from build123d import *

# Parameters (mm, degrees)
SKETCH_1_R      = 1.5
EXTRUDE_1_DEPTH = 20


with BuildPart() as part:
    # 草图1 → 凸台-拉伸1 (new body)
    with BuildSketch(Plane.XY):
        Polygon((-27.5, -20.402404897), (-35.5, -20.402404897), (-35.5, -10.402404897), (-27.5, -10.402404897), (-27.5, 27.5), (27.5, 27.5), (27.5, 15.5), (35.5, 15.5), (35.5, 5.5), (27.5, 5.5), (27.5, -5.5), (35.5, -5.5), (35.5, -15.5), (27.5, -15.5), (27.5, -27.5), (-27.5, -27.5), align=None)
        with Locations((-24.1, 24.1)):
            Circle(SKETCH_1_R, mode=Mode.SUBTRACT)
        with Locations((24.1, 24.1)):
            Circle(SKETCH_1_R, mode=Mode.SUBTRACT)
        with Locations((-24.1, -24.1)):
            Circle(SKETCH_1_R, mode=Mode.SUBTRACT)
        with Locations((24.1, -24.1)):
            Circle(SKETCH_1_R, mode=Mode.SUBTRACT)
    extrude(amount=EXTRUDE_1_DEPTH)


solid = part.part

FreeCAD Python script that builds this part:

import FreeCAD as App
import Part
import Sketcher

doc = App.newDocument("Part")
body = doc.addObject("PartDesign::Body", "Body")

# Sketch on XY plane
sketch1 = body.newObject("Sketcher::SketchObject", "Sketch")
sketch1.AttachmentSupport = (doc.getObject("XY_Plane"), [""])
sketch1.MapMode = "FlatFace"
sketch1.addGeometry([
    Part.LineSegment(App.Vector(-35.5, -20.4, 0), App.Vector(-27.5, -20.4, 0)),  # 0
    Part.LineSegment(App.Vector(-27.5, -20.4, 0), App.Vector(-27.5, -27.5, 0)),  # 1
    Part.LineSegment(App.Vector(-27.5, -27.5, 0), App.Vector(27.5, -27.5, 0)),  # 2
    Part.LineSegment(App.Vector(27.5, -27.5, 0), App.Vector(27.5, -15.5, 0)),  # 3
    Part.LineSegment(App.Vector(27.5, -15.5, 0), App.Vector(35.5, -15.5, 0)),  # 4
    Part.LineSegment(App.Vector(35.5, -15.5, 0), App.Vector(35.5, -5.5, 0)),  # 5
    Part.LineSegment(App.Vector(35.5, -5.5, 0), App.Vector(27.5, -5.5, 0)),  # 6
    Part.LineSegment(App.Vector(27.5, -5.5, 0), App.Vector(27.5, 5.5, 0)),  # 7
    Part.LineSegment(App.Vector(27.5, 5.5, 0), App.Vector(35.5, 5.5, 0)),  # 8
    Part.LineSegment(App.Vector(35.5, 5.5, 0), App.Vector(35.5, 15.5, 0)),  # 9
    Part.LineSegment(App.Vector(35.5, 15.5, 0), App.Vector(27.5, 15.5, 0)),  # 10
    Part.LineSegment(App.Vector(27.5, 15.5, 0), App.Vector(27.5, 27.5, 0)),  # 11
    Part.LineSegment(App.Vector(27.5, 27.5, 0), App.Vector(-27.5, 27.5, 0)),  # 12
    Part.LineSegment(App.Vector(-27.5, 27.5, 0), App.Vector(-27.5, -10.4, 0)),  # 13
    Part.LineSegment(App.Vector(-27.5, -10.4, 0), App.Vector(-35.5, -10.4, 0)),  # 14
    Part.LineSegment(App.Vector(-35.5, -10.4, 0), App.Vector(-35.5, -20.4, 0)),  # 15
    Part.Circle(App.Vector(24.1, -24.1, 0), App.Vector(0, 0, 1), 1.5),  # 16
    Part.Circle(App.Vector(-24.1, -24.1, 0), App.Vector(0, 0, 1), 1.5),  # 17
    Part.Circle(App.Vector(24.1, 24.1, 0), App.Vector(0, 0, 1), 1.5),  # 18
    Part.Circle(App.Vector(-24.1, 24.1, 0), App.Vector(0, 0, 1), 1.5),  # 19
], False)
sketch1.addConstraint([
    Sketcher.Constraint("Coincident", 0, 2, 1, 1),
    Sketcher.Constraint("Coincident", 1, 2, 2, 1),
    Sketcher.Constraint("Coincident", 2, 2, 3, 1),
    Sketcher.Constraint("Coincident", 3, 2, 4, 1),
    Sketcher.Constraint("Coincident", 4, 2, 5, 1),
    Sketcher.Constraint("Coincident", 5, 2, 6, 1),
    Sketcher.Constraint("Coincident", 6, 2, 7, 1),
    Sketcher.Constraint("Coincident", 7, 2, 8, 1),
    Sketcher.Constraint("Coincident", 8, 2, 9, 1),
    Sketcher.Constraint("Coincident", 9, 2, 10, 1),
    Sketcher.Constraint("Coincident", 10, 2, 11, 1),
    Sketcher.Constraint("Coincident", 11, 2, 12, 1),
    Sketcher.Constraint("Coincident", 12, 2, 13, 1),
    Sketcher.Constraint("Coincident", 13, 2, 14, 1),
    Sketcher.Constraint("Coincident", 14, 2, 15, 1),
    Sketcher.Constraint("Coincident", 15, 2, 0, 1),
    Sketcher.Constraint("Horizontal", 0),
    Sketcher.Constraint("Vertical", 1),
    Sketcher.Constraint("Horizontal", 2),
    Sketcher.Constraint("Vertical", 3),
    Sketcher.Constraint("Horizontal", 4),
    Sketcher.Constraint("Vertical", 5),
    Sketcher.Constraint("Horizontal", 6),
    Sketcher.Constraint("Vertical", 7),
    Sketcher.Constraint("Horizontal", 8),
    Sketcher.Constraint("Vertical", 9),
    Sketcher.Constraint("Horizontal", 10),
    Sketcher.Constraint("Vertical", 11),
    Sketcher.Constraint("Horizontal", 12),
    Sketcher.Constraint("Vertical", 13),
    Sketcher.Constraint("Horizontal", 14),
    Sketcher.Constraint("Vertical", 15),
    Sketcher.Constraint("Equal", 16, 17),
    Sketcher.Constraint("Equal", 17, 18),
    Sketcher.Constraint("Equal", 18, 19),
    Sketcher.Constraint("Symmetric", 17, 3, 18, 3, -1, 1),
    Sketcher.Constraint("Symmetric", 16, 3, 19, 3, -1, 1),
    Sketcher.Constraint("Symmetric", 1, 2, 11, 2, -1, 1),
    Sketcher.Constraint("Symmetric", 16, 3, 17, 3, -2),
    Sketcher.Constraint("Symmetric", 5, 2, 8, 2, -1),
    Sketcher.Constraint("Symmetric", 3, 2, 10, 2, -1),
    Sketcher.Constraint("Vertical", 3, 2, 6, 2),
    Sketcher.Constraint("Vertical", 1, 2, 12, 2),
    Sketcher.Constraint("Equal", 0, 4),
    Sketcher.Constraint("Equal", 9, 15),
    Sketcher.Constraint("Diameter", 16, 3.0),
    Sketcher.Constraint("DistanceX", 0, 1, 0, 2, 8.0),
    Sketcher.Constraint("DistanceX", 2, 1, 2, 2, 55.0),
    Sketcher.Constraint("DistanceY", 3, 1, 3, 2, 12.0),
    Sketcher.Constraint("DistanceY", 5, 1, 5, 2, 10.0),
    Sketcher.Constraint("DistanceY", 7, 1, 7, 2, 11.0),
    Sketcher.Constraint("DistanceX", -1, 1, 16, 3, 24.1),
    Sketcher.Constraint("DistanceY", 16, 3, -1, 1, 24.1),
    Sketcher.Constraint("DistanceY", 1, 2, 1, 1, 7.097595),
])
pad1 = body.newObject("PartDesign::Pad", "Pad")
pad1.Profile = sketch1
pad1.Length = 20

doc.recompute()
